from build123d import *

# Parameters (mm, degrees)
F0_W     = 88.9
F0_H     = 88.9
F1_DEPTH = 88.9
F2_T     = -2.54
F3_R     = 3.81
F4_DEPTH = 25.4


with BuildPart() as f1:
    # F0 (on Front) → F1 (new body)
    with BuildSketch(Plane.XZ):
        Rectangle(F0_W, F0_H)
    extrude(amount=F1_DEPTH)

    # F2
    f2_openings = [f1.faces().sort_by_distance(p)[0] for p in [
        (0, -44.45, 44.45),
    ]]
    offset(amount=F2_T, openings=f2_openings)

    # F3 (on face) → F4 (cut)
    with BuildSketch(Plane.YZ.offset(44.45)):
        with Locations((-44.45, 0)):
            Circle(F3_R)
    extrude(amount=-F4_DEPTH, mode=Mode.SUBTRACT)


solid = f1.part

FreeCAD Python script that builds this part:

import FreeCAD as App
import Part
import Sketcher
Q = App.Units.Quantity


def faces_at(feature, points):
    """Names of the faces that lie closest to the given points."""
    faces = feature.Shape.Faces
    near = lambda p: min(range(len(faces)), key=lambda i: faces[i].distToShape(Part.Vertex(*p))[0])
    return sorted({f"Face{near(p) + 1}" for p in points})

doc = App.newDocument("Part")
body = doc.addObject("PartDesign::Body", "Body")

# Sketch on XZ plane
sketch1 = body.newObject("Sketcher::SketchObject", "Sketch")
sketch1.AttachmentSupport = (doc.getObject("XZ_Plane"), [""])
sketch1.MapMode = "FlatFace"
sketch1.addGeometry([
    Part.LineSegment(App.Vector(-44.45, 44.45, 0), App.Vector(-44.45, -44.45, 0)),
    Part.LineSegment(App.Vector(-44.45, -44.45, 0), App.Vector(44.45, -44.45, 0)),
    Part.LineSegment(App.Vector(44.45, -44.45, 0), App.Vector(44.45, 44.45, 0)),
    Part.LineSegment(App.Vector(44.45, 44.45, 0), App.Vector(-44.45, 44.45, 0)),
], False)
sketch1.addConstraint([
    Sketcher.Constraint("Coincident", 0, 2, 1, 1),
    Sketcher.Constraint("Coincident", 1, 2, 2, 1),
    Sketcher.Constraint("Coincident", 2, 2, 3, 1),
    Sketcher.Constraint("Coincident", 3, 2, 0, 1),
    Sketcher.Constraint("Vertical", 0),
    Sketcher.Constraint("Horizontal", 1),
    Sketcher.Constraint("Vertical", 2),
    Sketcher.Constraint("Horizontal", 3),
    Sketcher.Constraint("Symmetric", 0, 2, 2, 2, -1, 1),
    Sketcher.Constraint("Equal", 3, 0),
    Sketcher.Constraint("DistanceX", 1, 1, 1, 2, Q("3.5 in")),
])
pad1 = body.newObject("PartDesign::Pad", "Pad")
pad1.Profile = sketch1
pad1.Length = Q("3.5 in")
doc.recompute()

thickness = body.newObject("PartDesign::Thickness", "Thickness")
thickness.Base = (pad1, faces_at(pad1, [(0, -44.45, 44.45)]))
thickness.Value = Q("0.1 in")
thickness.Reversed = True
thickness.Join = "Arc"

# Sketch on YZ plane
sketch2 = body.newObject("Sketcher::SketchObject", "Sketch001")
sketch2.AttachmentSupport = (doc.getObject("YZ_Plane"), [""])
sketch2.MapMode = "FlatFace"
sketch2.AttachmentOffset = App.Placement(App.Vector(0, 0, 1.75 * 25.4), App.Rotation())
sketch2.addGeometry(Part.Circle(App.Vector(-44.45, 0, 0), App.Vector(0, 0, 1), 3.81), False)
sketch2.addConstraint([
    Sketcher.Constraint("PointOnObject", 0, 3, -1),
    Sketcher.Constraint("Diameter", 0, Q("0.3 in")),
    Sketcher.Constraint("DistanceX", 0, 3, -1, 1, Q("1.75 in")),
])
pocket1 = body.newObject("PartDesign::Pocket", "Pocket")
pocket1.Profile = sketch2
pocket1.Length = Q("1 in")

doc.recompute()
